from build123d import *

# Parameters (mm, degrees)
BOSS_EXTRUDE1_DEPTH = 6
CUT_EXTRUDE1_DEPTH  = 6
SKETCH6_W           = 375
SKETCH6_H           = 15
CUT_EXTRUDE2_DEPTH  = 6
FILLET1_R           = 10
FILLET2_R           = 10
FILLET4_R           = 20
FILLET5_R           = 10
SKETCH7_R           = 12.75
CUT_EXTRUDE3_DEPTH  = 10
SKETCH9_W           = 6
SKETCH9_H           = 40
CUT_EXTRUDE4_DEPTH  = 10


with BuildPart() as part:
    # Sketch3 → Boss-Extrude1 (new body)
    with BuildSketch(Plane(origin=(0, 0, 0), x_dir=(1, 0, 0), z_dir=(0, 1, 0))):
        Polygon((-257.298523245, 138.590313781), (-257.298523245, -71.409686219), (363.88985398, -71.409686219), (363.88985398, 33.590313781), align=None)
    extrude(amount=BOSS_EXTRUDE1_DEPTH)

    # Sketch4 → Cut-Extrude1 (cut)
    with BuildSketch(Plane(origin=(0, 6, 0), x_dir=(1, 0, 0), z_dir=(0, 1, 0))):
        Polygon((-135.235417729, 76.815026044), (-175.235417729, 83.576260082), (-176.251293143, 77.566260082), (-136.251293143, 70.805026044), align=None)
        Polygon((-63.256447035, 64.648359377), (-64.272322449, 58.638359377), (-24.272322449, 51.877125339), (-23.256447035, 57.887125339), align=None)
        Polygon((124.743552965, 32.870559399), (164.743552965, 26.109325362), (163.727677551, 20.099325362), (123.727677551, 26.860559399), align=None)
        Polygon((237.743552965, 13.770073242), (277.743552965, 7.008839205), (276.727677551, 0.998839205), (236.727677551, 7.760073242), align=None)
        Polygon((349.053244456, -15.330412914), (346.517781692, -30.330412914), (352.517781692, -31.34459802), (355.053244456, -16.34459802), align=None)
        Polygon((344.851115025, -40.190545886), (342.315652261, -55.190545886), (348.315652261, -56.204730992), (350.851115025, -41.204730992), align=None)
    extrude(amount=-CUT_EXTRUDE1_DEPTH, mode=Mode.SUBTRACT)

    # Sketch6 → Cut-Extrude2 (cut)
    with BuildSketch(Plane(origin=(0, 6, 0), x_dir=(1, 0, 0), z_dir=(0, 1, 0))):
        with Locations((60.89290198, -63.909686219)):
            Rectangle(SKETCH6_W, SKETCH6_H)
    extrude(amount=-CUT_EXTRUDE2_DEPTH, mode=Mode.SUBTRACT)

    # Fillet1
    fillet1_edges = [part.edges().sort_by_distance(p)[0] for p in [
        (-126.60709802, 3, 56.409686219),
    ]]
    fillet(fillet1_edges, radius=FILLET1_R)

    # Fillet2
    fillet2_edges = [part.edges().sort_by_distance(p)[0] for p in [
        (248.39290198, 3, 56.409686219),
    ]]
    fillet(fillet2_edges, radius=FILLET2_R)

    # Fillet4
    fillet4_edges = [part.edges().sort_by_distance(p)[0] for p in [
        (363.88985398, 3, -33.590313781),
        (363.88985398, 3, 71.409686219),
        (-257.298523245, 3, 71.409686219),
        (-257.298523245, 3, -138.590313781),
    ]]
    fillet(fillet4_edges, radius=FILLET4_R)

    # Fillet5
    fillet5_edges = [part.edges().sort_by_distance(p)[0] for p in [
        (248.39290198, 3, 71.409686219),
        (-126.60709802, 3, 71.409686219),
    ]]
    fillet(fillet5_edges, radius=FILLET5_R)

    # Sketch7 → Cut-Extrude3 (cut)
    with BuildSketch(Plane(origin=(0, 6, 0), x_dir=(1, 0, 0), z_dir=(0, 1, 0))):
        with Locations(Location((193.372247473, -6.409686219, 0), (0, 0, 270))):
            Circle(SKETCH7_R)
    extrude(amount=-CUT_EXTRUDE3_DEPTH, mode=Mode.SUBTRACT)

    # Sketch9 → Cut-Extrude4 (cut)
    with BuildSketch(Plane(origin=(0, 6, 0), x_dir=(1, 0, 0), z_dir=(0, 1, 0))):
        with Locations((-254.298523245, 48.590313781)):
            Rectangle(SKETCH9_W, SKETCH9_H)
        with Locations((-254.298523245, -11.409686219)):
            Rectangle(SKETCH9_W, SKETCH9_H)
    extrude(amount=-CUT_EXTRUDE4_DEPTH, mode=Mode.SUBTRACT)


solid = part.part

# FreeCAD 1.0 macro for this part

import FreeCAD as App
import Part
import Sketcher

V = App.Vector


def edges_at(feature, points):
    """Names of the edges that pass closest to the given points."""
    edges = feature.Shape.Edges
    near = lambda p: min(range(len(edges)), key=lambda i: edges[i].distToShape(Part.Vertex(*p))[0])
    return sorted({f"Edge{near(p) + 1}" for p in points})

doc = App.newDocument("Part")
body = doc.addObject("PartDesign::Body", "Body")

# Sketch on XZ plane
sketch1 = doc.addObject("Sketcher::SketchObject", "Sketch")
body.addObject(sketch1)
sketch1.AttachmentSupport = (doc.XZ_Plane, [""])
sketch1.MapMode = "FlatFace"
sketch1.addGeometry([
    Part.LineSegment(V(-257, -139, 0), V(-257, 71, 0)),
    Part.LineSegment(V(-257, 71, 0), V(364, 71, 0)),
    Part.LineSegment(V(364, 71, 0), V(364, -34, 0)),
    Part.LineSegment(V(364, -34, 0), V(-257, -139, 0)),
], False)
sketch1.addConstraint([
    Sketcher.Constraint("Coincident", 0, 2, 1, 1),
    Sketcher.Constraint("Coincident", 1, 2, 2, 1),
    Sketcher.Constraint("Coincident", 2, 2, 3, 1),
    Sketcher.Constraint("Coincident", 3, 2, 0, 1),
    Sketcher.Constraint("Vertical", 0),
    Sketcher.Constraint("Horizontal", 1),
    Sketcher.Constraint("Vertical", 2),
    Sketcher.Constraint("DistanceY", 0, 1, 0, 2, 210.0),
    Sketcher.Constraint("DistanceY", 2, 2, 2, 1, 105.0),
    Sketcher.Constraint("Distance", 3, 630.0),
    Sketcher.Constraint("DistanceX", 0, 2, -1, 1, 257.298523),
    Sketcher.Constraint("DistanceY", -1, 1, 0, 2, 71.409686),
])
pad1 = doc.addObject("PartDesign::Pad", "Pad")
body.addObject(pad1)
pad1.Profile = sketch1
pad1.Length = 6
pad1.Reversed = True

# Sketch on XZ plane
sketch2 = doc.addObject("Sketcher::SketchObject", "Sketch001")
body.addObject(sketch2)
sketch2.AttachmentSupport = (doc.XZ_Plane, [""])
sketch2.MapMode = "FlatFace"
sketch2.AttachmentOffset = App.Placement(V(0, 0, -6), App.Rotation())
sketch2.addGeometry([
    Part.LineSegment(V(-135, -77, 0), V(-175, -84, 0)),  # 0
    Part.LineSegment(V(-175, -84, 0), V(-176, -78, 0)),  # 1
    Part.LineSegment(V(-176, -78, 0), V(-136, -71, 0)),  # 2
    Part.LineSegment(V(-136, -71, 0), V(-135, -77, 0)),  # 3
    Part.LineSegment(V(-63, -65, 0), V(-64, -59, 0)),  # 4
    Part.LineSegment(V(-64, -59, 0), V(-24, -52, 0)),  # 5
    Part.LineSegment(V(-24, -52, 0), V(-23, -58, 0)),  # 6
    Part.LineSegment(V(-23, -58, 0), V(-63, -65, 0)),  # 7
    Part.LineSegment(V(165, -26, 0), V(125, -33, 0)),  # 8
    Part.LineSegment(V(125, -33, 0), V(124, -27, 0)),  # 9
    Part.LineSegment(V(124, -27, 0), V(164, -20, 0)),  # 10
    Part.LineSegment(V(164, -20, 0), V(165, -26, 0)),  # 11
    Part.LineSegment(V(278, -7, 0), V(238, -14, 0)),  # 12
    Part.LineSegment(V(238, -14, 0), V(237, -8, 0)),  # 13
    Part.LineSegment(V(237, -8, 0), V(277, -1, 0)),  # 14
    Part.LineSegment(V(277, -1, 0), V(278, -7, 0)),  # 15
    Part.LineSegment(V(349, 15, 0), V(347, 30, 0)),  # 16
    Part.LineSegment(V(347, 30, 0), V(353, 31, 0)),  # 17
    Part.LineSegment(V(353, 31, 0), V(355, 16, 0)),  # 18
    Part.LineSegment(V(355, 16, 0), V(349, 15, 0)),  # 19
    Part.LineSegment(V(345, 40, 0), V(342, 55, 0)),  # 20
    Part.LineSegment(V(342, 55, 0), V(348, 56, 0)),  # 21
    Part.LineSegment(V(348, 56, 0), V(351, 41, 0)),  # 22
    Part.LineSegment(V(351, 41, 0), V(345, 40, 0)),  # 23
], False)
sketch2.addConstraint([
    Sketcher.Constraint("Coincident", 0, 2, 1, 1),
    Sketcher.Constraint("Coincident", 1, 2, 2, 1),
    Sketcher.Constraint("Coincident", 2, 2, 3, 1),
    Sketcher.Constraint("Coincident", 3, 2, 0, 1),
    Sketcher.Constraint("Coincident", 4, 2, 5, 1),
    Sketcher.Constraint("Coincident", 5, 2, 6, 1),
    Sketcher.Constraint("Coincident", 6, 2, 7, 1),
    Sketcher.Constraint("Coincident", 7, 2, 4, 1),
    Sketcher.Constraint("Coincident", 8, 2, 9, 1),
    Sketcher.Constraint("Coincident", 9, 2, 10, 1),
    Sketcher.Constraint("Coincident", 10, 2, 11, 1),
    Sketcher.Constraint("Coincident", 11, 2, 8, 1),
    Sketcher.Constraint("Coincident", 12, 2, 13, 1),
    Sketcher.Constraint("Coincident", 13, 2, 14, 1),
    Sketcher.Constraint("Coincident", 14, 2, 15, 1),
    Sketcher.Constraint("Coincident", 15, 2, 12, 1),
    Sketcher.Constraint("Coincident", 16, 2, 17, 1),
    Sketcher.Constraint("Coincident", 17, 2, 18, 1),
    Sketcher.Constraint("Coincident", 18, 2, 19, 1),
    Sketcher.Constraint("Coincident", 19, 2, 16, 1),
    Sketcher.Constraint("Coincident", 20, 2, 21, 1),
    Sketcher.Constraint("Coincident", 21, 2, 22, 1),
    Sketcher.Constraint("Coincident", 22, 2, 23, 1),
    Sketcher.Constraint("Coincident", 23, 2, 20, 1),
    Sketcher.Constraint("Perpendicular", 0, 1),
    Sketcher.Constraint("Perpendicular", 1, 2),
    Sketcher.Constraint("Perpendicular", 2, 3),
    Sketcher.Constraint("Parallel", 3, 4),
    Sketcher.Constraint("Perpendicular", 4, 5),
    Sketcher.Constraint("Perpendicular", 5, 6),
    Sketcher.Constraint("Perpendicular", 6, 7),
    Sketcher.Constraint("Parallel", 7, 8),
    Sketcher.Constraint("Perpendicular", 8, 9),
    Sketcher.Constraint("Perpendicular", 9, 10),
    Sketcher.Constraint("Perpendicular", 10, 11),
    Sketcher.Constraint("Perpendicular", 11, 12),
    Sketcher.Constraint("Perpendicular", 12, 13),
    Sketcher.Constraint("Perpendicular", 13, 14),
    Sketcher.Constraint("Perpendicular", 14, 15),
    Sketcher.Constraint("Parallel", 15, 16),
    Sketcher.Constraint("Perpendicular", 16, 17),
    Sketcher.Constraint("Perpendicular", 17, 18),
    Sketcher.Constraint("Perpendicular", 18, 19),
    Sketcher.Constraint("Perpendicular", 19, 20),
    Sketcher.Constraint("Perpendicular", 20, 21),
    Sketcher.Constraint("Perpendicular", 21, 22),
    Sketcher.Constraint("Perpendicular", 22, 23),
    Sketcher.Constraint("Equal", 3, 4),
    Sketcher.Constraint("Equal", 2, 5),
    Sketcher.Constraint("Equal", 7, 8),
    Sketcher.Constraint("Equal", 6, 9),
    Sketcher.Constraint("Equal", 10, 12),
    Sketcher.Constraint("Equal", 11, 13),
    Sketcher.Constraint("Equal", 18, 20),
    Sketcher.Constraint("Equal", 19, 21),
    Sketcher.Constraint("DistanceX", 1, 2, 2, 2, 40.0),
    Sketcher.Constraint("DistanceX", 6, 2, 8, 2, 148.0),
    Sketcher.Constraint("DistanceX", 11, 2, 12, 2, 73.0),
    Sketcher.Constraint("DistanceX", 16, 2, 17, 2, 6.0),
    Sketcher.Constraint("DistanceY", 18, 2, 17, 2, 15.0),
    Sketcher.Constraint("DistanceY", 0, 2, 1, 2, 6.01),
    Sketcher.Constraint("DistanceY", -1, 1, 17, 2, 31.344598),
    Sketcher.Constraint("DistanceY", 1, 2, 4, 2, 18.927901),
    Sketcher.Constraint("DistanceY", 7, 2, 8, 2, 31.7778),
    Sketcher.Constraint("Distance", 17, 6.085111),
    Sketcher.Constraint("DistanceY", 0, 2, -1, 1, 83.57626),
    Sketcher.Constraint("DistanceY", 14, 2, -1, 1, 0.998839),
    Sketcher.Constraint("DistanceX", -1, 1, 16, 2, 346.517782),
    Sketcher.Constraint("DistanceY", -1, 1, 21, 2, 56.204731),
    Sketcher.Constraint("DistanceX", 2, 2, 4, 2, 71.978971),
    Sketcher.Constraint("DistanceX", 15, 2, 16, 2, 68.774229),
    Sketcher.Constraint("DistanceX", 20, 2, 16, 2, 4.202129),
])
pocket1 = doc.addObject("PartDesign::Pocket", "Pocket")
body.addObject(pocket1)
pocket1.Profile = sketch2
pocket1.Length = 6
pocket1.Reversed = True

# Sketch on XZ plane
sketch3 = doc.addObject("Sketcher::SketchObject", "Sketch002")
body.addObject(sketch3)
sketch3.AttachmentSupport = (doc.XZ_Plane, [""])
sketch3.MapMode = "FlatFace"
sketch3.AttachmentOffset = App.Placement(V(0, 0, -6), App.Rotation())
sketch3.addGeometry([
    Part.LineSegment(V(-127, 56, 0), V(-127, 71, 0)),
    Part.LineSegment(V(-127, 71, 0), V(248, 71, 0)),
    Part.LineSegment(V(248, 71, 0), V(248, 56, 0)),
    Part.LineSegment(V(248, 56, 0), V(-127, 56, 0)),
], False)
sketch3.addConstraint([
    Sketcher.Constraint("Coincident", 0, 2, 1, 1),
    Sketcher.Constraint("Coincident", 1, 2, 2, 1),
    Sketcher.Constraint("Coincident", 2, 2, 3, 1),
    Sketcher.Constraint("Coincident", 3, 2, 0, 1),
    Sketcher.Constraint("Vertical", 0),
    Sketcher.Constraint("Horizontal", 1),
    Sketcher.Constraint("Vertical", 2),
    Sketcher.Constraint("Horizontal", 3),
    Sketcher.Constraint("DistanceX", 1, 1, 1, 2, 375.0),
    Sketcher.Constraint("DistanceY", 0, 1, 0, 2, 15.0),
    Sketcher.Constraint("DistanceX", 0, 2, -1, 1, 126.607098),
    Sketcher.Constraint("DistanceY", -1, 1, 0, 2, 71.409686),
])
pocket2 = doc.addObject("PartDesign::Pocket", "Pocket001")
body.addObject(pocket2)
pocket2.Profile = sketch3
pocket2.Length = 6
pocket2.Reversed = True
doc.recompute()

fillet = doc.addObject("PartDesign::Fillet", "Fillet")
body.addObject(fillet)
fillet.Base = (pocket2, edges_at(pocket2, [(-126.607, 3, 56.41)]))
fillet.Radius = 10
doc.recompute()

fillet2 = doc.addObject("PartDesign::Fillet", "Fillet001")
body.addObject(fillet2)
fillet2.Base = (fillet, edges_at(fillet, [(248.393, 3, 56.41)]))
fillet2.Radius = 10
doc.recompute()

fillet3 = doc.addObject("PartDesign::Fillet", "Fillet002")
body.addObject(fillet3)
fillet3.Base = (fillet2, edges_at(fillet2, [
    (363.89, 3, -33.59),
    (363.89, 3, 71.41),
    (-257.299, 3, 71.41),
    (-257.299, 3, -138.59),
]))
fillet3.Radius = 20
doc.recompute()

fillet4 = doc.addObject("PartDesign::Fillet", "Fillet003")
body.addObject(fillet4)
fillet4.Base = (fillet3, edges_at(fillet3, [(248.393, 3, 71.41), (-126.607, 3, 71.41)]))
fillet4.Radius = 10

# Sketch on XZ plane
sketch4 = doc.addObject("Sketcher::SketchObject", "Sketch003")
body.addObject(sketch4)
sketch4.AttachmentSupport = (doc.XZ_Plane, [""])
sketch4.MapMode = "FlatFace"
sketch4.AttachmentOffset = App.Placement(V(0, 0, -6), App.Rotation())
sketch4.addGeometry(Part.Circle(V(193, 6, 0), V(0, 0, 1), 13), False)
sketch4.addConstraint([
    Sketcher.Constraint("Diameter", 0, 25.5),
    Sketcher.Constraint("DistanceX", -1, 1, 0, 3, 193.372247),
    Sketcher.Constraint("DistanceY", -1, 1, 0, 3, 6.409686),
])
pocket3 = doc.addObject("PartDesign::Pocket", "Pocket002")
body.addObject(pocket3)
pocket3.Profile = sketch4
pocket3.Length = 10
pocket3.Reversed = True

# Sketch on XZ plane
sketch5 = doc.addObject("Sketcher::SketchObject", "Sketch004")
body.addObject(sketch5)
sketch5.AttachmentSupport = (doc.XZ_Plane, [""])
sketch5.MapMode = "FlatFace"
sketch5.AttachmentOffset = App.Placement(V(0, 0, -6), App.Rotation())
sketch5.addGeometry([
    Part.LineSegment(V(-257, -69, 0), V(-257, -29, 0)),  # 0
    Part.LineSegment(V(-257, -29, 0), V(-251, -29, 0)),  # 1
    Part.LineSegment(V(-251, -29, 0), V(-251, -69, 0)),  # 2
    Part.LineSegment(V(-251, -69, 0), V(-257, -69, 0)),  # 3
    Part.LineSegment(V(-257, -9, 0), V(-257, 31, 0)),  # 4
    Part.LineSegment(V(-257, 31, 0), V(-251, 31, 0)),  # 5
    Part.LineSegment(V(-251, 31, 0), V(-251, -9, 0)),  # 6
    Part.LineSegment(V(-251, -9, 0), V(-257, -9, 0)),  # 7
], False)
sketch5.addConstraint([
    Sketcher.Constraint("Coincident", 0, 2, 1, 1),
    Sketcher.Constraint("Coincident", 1, 2, 2, 1),
    Sketcher.Constraint("Coincident", 2, 2, 3, 1),
    Sketcher.Constraint("Coincident", 3, 2, 0, 1),
    Sketcher.Constraint("Coincident", 4, 2, 5, 1),
    Sketcher.Constraint("Coincident", 5, 2, 6, 1),
    Sketcher.Constraint("Coincident", 6, 2, 7, 1),
    Sketcher.Constraint("Coincident", 7, 2, 4, 1),
    Sketcher.Constraint("Vertical", 0),
    Sketcher.Constraint("Horizontal", 1),
    Sketcher.Constraint("Vertical", 2),
    Sketcher.Constraint("Horizontal", 3),
    Sketcher.Constraint("Vertical", 4),
    Sketcher.Constraint("Horizontal", 5),
    Sketcher.Constraint("Vertical", 6),
    Sketcher.Constraint("Horizontal", 7),
    Sketcher.Constraint("Vertical", 3, 2, 4, 2),
    Sketcher.Constraint("Vertical", 2, 2, 5, 2),
    Sketcher.Constraint("Equal", 2, 4),
    Sketcher.Constraint("DistanceX", 1, 1, 1, 2, 6.0),
    Sketcher.Constraint("DistanceY", 0, 1, 0, 2, 40.0),
    Sketcher.Constraint("DistanceY", 0, 2, 4, 2, 60.0),
    Sketcher.Constraint("DistanceX", 0, 2, -1, 1, 257.298523),
    Sketcher.Constraint("DistanceY", 0, 2, -1, 1, 28.590314),
])
pocket4 = doc.addObject("PartDesign::Pocket", "Pocket003")
body.addObject(pocket4)
pocket4.Profile = sketch5
pocket4.Length = 10
pocket4.Reversed = True

doc.recompute()
